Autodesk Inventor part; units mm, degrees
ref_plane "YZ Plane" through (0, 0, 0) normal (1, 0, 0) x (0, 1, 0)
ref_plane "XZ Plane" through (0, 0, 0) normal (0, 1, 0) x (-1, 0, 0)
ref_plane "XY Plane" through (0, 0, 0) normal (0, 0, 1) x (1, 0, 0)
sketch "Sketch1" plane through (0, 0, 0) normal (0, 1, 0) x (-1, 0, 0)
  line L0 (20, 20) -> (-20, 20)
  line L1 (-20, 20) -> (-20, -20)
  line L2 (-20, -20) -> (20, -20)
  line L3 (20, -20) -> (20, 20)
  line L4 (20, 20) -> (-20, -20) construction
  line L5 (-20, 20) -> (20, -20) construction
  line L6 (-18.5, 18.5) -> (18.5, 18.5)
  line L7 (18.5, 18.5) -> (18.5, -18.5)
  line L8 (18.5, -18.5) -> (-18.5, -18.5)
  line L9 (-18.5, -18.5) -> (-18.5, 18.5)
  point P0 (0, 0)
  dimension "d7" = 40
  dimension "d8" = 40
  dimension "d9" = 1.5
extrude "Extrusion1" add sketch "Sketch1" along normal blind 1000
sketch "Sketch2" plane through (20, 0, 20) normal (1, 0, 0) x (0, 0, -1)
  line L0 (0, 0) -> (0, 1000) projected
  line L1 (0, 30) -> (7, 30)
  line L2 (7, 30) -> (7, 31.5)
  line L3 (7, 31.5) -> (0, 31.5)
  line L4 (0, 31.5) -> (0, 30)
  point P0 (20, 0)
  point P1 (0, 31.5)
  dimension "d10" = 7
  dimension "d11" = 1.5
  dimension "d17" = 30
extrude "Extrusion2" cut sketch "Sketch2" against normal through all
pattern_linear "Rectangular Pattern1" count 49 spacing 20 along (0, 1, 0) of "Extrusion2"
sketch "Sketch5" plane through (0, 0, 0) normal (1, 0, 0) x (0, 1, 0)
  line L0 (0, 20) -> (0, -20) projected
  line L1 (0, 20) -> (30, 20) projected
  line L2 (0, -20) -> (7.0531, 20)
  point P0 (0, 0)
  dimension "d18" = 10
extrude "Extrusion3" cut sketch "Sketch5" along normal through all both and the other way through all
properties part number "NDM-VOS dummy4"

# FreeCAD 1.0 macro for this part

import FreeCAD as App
import Part
import Sketcher

V = App.Vector
Q = App.Units.Quantity


def add_polygon(sketch, points):
    """Adds a closed chain of lines whose ends are joined by coincident constraints."""
    first, n = sketch.GeometryCount, len(points)
    for a, b in zip(points, points[1:] + points[:1]):
        sketch.addGeometry(Part.LineSegment(App.Vector(*a, 0), App.Vector(*b, 0)), False)
    for i in range(n):
        sketch.addConstraint(Sketcher.Constraint("Coincident", first + i, 2, first + (i + 1) % n, 1))

doc = App.newDocument("Part")
body = doc.addObject("PartDesign::Body", "Body")

sketch1 = doc.addObject("Sketcher::SketchObject", "Sketch")
body.addObject(sketch1)
sketch1.AttachmentSupport = (doc.XZ_Plane, [""])
sketch1.MapMode = "FlatFace"
add_polygon(sketch1, [(-20, -20), (-20, 20), (20, 20), (20, -20)])
add_polygon(sketch1, [(18.5, -18.5), (18.5, 18.5), (-18.5, 18.5), (-18.5, -18.5)])
sketch1.addConstraint(Sketcher.Constraint("Vertical", 0))
sketch1.addConstraint(Sketcher.Constraint("Horizontal", 1))
sketch1.addConstraint(Sketcher.Constraint("Vertical", 2))
sketch1.addConstraint(Sketcher.Constraint("Horizontal", 3))
sketch1.addConstraint(Sketcher.Constraint("Vertical", 4))
sketch1.addConstraint(Sketcher.Constraint("Horizontal", 5))
sketch1.addConstraint(Sketcher.Constraint("Vertical", 6))
sketch1.addConstraint(Sketcher.Constraint("Horizontal", 7))
sketch1.addConstraint(Sketcher.Constraint("Symmetric", 0, 2, 2, 2, -1, 1))
sketch1.addConstraint(Sketcher.Constraint("Symmetric", 4, 2, 6, 2, -1, 1))
sketch1.addConstraint(Sketcher.Constraint("Equal", 3, 0))
sketch1.addConstraint(Sketcher.Constraint("Equal", 7, 4))
sketch1.addConstraint(Sketcher.Constraint("DistanceX", 1, 1, 1, 2, 40.0))
sketch1.addConstraint(Sketcher.Constraint("DistanceX", 4, 2, 1, 2, 1.5))
pad1 = doc.addObject("PartDesign::Pad", "Pad")
body.addObject(pad1)
pad1.Profile = sketch1
pad1.Length = 1000
pad1.Reversed = True

sketch2 = doc.addObject("Sketcher::SketchObject", "Sketch001")
body.addObject(sketch2)
sketch2.AttachmentSupport = (doc.YZ_Plane, [""])
sketch2.MapMode = "FlatFace"
sketch2.AttachmentOffset = App.Placement(V(0, 0, 20), App.Rotation())
add_polygon(sketch2, [(31.5, 20), (30, 20), (30, 13), (31.5, 13)])
sketch2.addConstraint(Sketcher.Constraint("Horizontal", 0))
sketch2.addConstraint(Sketcher.Constraint("Vertical", 1))
sketch2.addConstraint(Sketcher.Constraint("Horizontal", 2))
sketch2.addConstraint(Sketcher.Constraint("Vertical", 3))
sketch2.addConstraint(Sketcher.Constraint("DistanceY", 1, 2, 1, 1, 7.0))
sketch2.addConstraint(Sketcher.Constraint("DistanceX", 0, 2, 0, 1, 1.5))
sketch2.addConstraint(Sketcher.Constraint("DistanceX", -1, 1, 0, 2, 30.0))
sketch2.addConstraint(Sketcher.Constraint("DistanceY", -1, 1, 0, 2, 20.0))
pocket1 = doc.addObject("PartDesign::Pocket", "Pocket")
body.addObject(pocket1)
pocket1.Profile = sketch2
pocket1.Type = "ThroughAll"
doc.recompute()

linearpattern = doc.addObject("PartDesign::LinearPattern", "LinearPattern")
body.addObject(linearpattern)
linearpattern.Originals = [pocket1]
linearpattern.Direction = (doc.Y_Axis, [""])
linearpattern.Mode = "offset"
linearpattern.Offset = 20
linearpattern.Occurrences = 49
body.Tip = linearpattern

sketch3 = doc.addObject("Sketcher::SketchObject", "Sketch002")
body.addObject(sketch3)
sketch3.AttachmentSupport = (doc.YZ_Plane, [""])
sketch3.MapMode = "FlatFace"
add_polygon(sketch3, [(7.0531, 20), (0, 20), (0, -20)])
sketch3.addConstraint(Sketcher.Constraint("Horizontal", 0))
sketch3.addConstraint(Sketcher.Constraint("Vertical", 1))
sketch3.addConstraint(Sketcher.Constraint("Symmetric", 0, 2, 1, 2, -1, 1))
sketch3.addConstraint(Sketcher.Constraint("DistanceY", 1, 2, 1, 1, 40.0))
sketch3.addConstraint(Sketcher.Constraint("Angle", 2, Q("80 deg")))
pocket2 = doc.addObject("PartDesign::Pocket", "Pocket001")
body.addObject(pocket2)
pocket2.Profile = sketch3
pocket2.Type = "ThroughAll"
pocket2.Midplane = True

doc.recompute()
